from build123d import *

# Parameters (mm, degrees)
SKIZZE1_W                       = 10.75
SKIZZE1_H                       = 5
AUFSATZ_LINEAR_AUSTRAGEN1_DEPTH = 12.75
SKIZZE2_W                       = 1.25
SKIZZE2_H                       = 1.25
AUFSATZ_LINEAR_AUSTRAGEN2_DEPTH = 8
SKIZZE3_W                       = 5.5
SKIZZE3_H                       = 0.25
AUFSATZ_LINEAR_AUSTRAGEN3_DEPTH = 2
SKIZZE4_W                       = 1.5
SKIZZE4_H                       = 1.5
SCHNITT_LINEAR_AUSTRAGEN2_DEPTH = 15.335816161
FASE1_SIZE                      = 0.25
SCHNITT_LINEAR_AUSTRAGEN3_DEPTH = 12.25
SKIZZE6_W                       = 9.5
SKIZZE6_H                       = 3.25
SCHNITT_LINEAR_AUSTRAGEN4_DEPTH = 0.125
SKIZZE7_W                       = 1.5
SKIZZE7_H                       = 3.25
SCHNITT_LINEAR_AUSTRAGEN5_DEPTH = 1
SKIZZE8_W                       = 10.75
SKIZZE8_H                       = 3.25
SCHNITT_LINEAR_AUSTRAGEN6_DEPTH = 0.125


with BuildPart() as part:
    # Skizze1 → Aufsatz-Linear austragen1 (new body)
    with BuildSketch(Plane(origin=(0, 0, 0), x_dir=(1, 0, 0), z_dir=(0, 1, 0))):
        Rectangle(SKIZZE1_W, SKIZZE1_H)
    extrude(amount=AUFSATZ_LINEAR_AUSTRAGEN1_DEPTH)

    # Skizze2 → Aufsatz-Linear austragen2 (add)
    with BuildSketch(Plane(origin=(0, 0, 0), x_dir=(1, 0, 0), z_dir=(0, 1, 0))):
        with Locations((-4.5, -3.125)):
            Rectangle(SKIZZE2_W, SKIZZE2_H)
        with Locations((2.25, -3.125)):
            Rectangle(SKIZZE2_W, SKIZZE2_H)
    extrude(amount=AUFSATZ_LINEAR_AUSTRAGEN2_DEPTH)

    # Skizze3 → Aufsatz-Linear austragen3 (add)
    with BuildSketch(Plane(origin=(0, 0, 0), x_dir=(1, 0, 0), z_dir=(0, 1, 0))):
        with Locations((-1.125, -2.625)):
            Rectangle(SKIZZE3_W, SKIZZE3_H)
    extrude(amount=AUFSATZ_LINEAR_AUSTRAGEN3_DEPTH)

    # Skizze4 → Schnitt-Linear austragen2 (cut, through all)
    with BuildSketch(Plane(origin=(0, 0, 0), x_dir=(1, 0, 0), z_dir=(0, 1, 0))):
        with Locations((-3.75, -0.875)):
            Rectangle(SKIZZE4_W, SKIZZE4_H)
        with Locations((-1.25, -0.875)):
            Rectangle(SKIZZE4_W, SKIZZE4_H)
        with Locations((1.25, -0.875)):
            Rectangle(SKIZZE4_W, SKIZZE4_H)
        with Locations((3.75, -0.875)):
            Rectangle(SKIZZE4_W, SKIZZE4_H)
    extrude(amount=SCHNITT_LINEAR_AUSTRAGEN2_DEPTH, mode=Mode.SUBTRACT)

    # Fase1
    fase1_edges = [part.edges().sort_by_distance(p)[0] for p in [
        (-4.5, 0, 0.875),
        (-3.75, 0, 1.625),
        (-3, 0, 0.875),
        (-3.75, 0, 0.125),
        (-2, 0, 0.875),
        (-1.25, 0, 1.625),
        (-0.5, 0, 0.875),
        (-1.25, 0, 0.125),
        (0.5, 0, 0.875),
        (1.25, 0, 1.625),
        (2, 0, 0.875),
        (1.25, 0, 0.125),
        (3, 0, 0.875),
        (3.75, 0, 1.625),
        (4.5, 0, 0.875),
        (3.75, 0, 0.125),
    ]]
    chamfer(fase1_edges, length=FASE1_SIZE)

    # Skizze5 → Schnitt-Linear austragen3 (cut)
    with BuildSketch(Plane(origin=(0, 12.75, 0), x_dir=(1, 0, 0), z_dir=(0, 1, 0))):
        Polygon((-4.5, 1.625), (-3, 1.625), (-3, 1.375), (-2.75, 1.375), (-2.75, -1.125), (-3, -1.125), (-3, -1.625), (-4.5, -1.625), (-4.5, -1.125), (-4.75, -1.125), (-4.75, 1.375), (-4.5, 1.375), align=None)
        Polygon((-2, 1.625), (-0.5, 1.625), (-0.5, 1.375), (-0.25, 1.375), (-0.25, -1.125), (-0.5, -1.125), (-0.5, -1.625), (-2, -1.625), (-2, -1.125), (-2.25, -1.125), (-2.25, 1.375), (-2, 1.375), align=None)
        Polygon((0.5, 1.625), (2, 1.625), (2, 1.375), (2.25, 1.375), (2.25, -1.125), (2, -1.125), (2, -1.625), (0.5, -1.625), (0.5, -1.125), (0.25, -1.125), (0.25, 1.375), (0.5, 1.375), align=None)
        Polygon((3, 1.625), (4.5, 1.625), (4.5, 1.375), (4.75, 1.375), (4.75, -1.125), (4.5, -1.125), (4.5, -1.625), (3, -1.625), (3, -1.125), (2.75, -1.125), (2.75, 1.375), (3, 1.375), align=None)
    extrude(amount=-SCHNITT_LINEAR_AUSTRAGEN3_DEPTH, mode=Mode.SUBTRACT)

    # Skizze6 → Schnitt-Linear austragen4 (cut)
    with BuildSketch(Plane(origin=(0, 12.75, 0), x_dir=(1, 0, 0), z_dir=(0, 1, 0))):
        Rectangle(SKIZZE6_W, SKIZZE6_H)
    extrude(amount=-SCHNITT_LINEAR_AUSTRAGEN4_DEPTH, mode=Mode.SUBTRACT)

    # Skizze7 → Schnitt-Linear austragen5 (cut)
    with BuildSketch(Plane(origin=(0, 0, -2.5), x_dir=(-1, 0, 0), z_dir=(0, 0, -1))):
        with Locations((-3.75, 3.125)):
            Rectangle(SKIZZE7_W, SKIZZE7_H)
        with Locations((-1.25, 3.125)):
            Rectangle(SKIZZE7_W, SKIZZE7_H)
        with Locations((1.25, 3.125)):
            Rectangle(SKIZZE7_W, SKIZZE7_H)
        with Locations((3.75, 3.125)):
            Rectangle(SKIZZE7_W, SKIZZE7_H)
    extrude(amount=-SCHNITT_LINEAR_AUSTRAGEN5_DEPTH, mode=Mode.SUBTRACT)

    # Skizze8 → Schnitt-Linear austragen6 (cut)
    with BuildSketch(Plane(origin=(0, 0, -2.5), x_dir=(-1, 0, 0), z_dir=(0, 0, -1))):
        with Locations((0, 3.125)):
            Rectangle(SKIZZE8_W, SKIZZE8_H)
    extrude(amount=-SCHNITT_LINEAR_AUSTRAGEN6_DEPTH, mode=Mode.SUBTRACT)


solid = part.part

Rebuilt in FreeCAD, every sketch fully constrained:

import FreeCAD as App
import Part
import Sketcher
from FreeCAD import Vector


def edges_at(feature, points):
    """Names of the edges that pass closest to the given points."""
    edges = feature.Shape.Edges
    near = lambda p: min(range(len(edges)), key=lambda i: edges[i].distToShape(Part.Vertex(*p))[0])
    return sorted({f"Edge{near(p) + 1}" for p in points})

doc = App.newDocument("Part")
body = doc.addObject("PartDesign::Body", "Body")

sketch1 = doc.addObject("Sketcher::SketchObject", "Sketch")
body.addObject(sketch1)
sketch1.AttachmentSupport = (doc.XZ_Plane, [""])
sketch1.MapMode = "FlatFace"
sketch1.addGeometry(Part.LineSegment(Vector(-5, -2, 0), Vector(-5, 2, 0)), False)
sketch1.addGeometry(Part.LineSegment(Vector(-5, 2, 0), Vector(5, 2, 0)), False)
sketch1.addGeometry(Part.LineSegment(Vector(5, 2, 0), Vector(5, -2, 0)), False)
sketch1.addGeometry(Part.LineSegment(Vector(5, -2, 0), Vector(-5, -2, 0)), False)
sketch1.addConstraint(Sketcher.Constraint("Coincident", 0, 2, 1, 1))
sketch1.addConstraint(Sketcher.Constraint("Coincident", 1, 2, 2, 1))
sketch1.addConstraint(Sketcher.Constraint("Coincident", 2, 2, 3, 1))
sketch1.addConstraint(Sketcher.Constraint("Coincident", 3, 2, 0, 1))
sketch1.addConstraint(Sketcher.Constraint("Vertical", 0))
sketch1.addConstraint(Sketcher.Constraint("Horizontal", 1))
sketch1.addConstraint(Sketcher.Constraint("Vertical", 2))
sketch1.addConstraint(Sketcher.Constraint("Horizontal", 3))
sketch1.addConstraint(Sketcher.Constraint("Symmetric", 0, 2, 2, 2, -1, 1))
sketch1.addConstraint(Sketcher.Constraint("DistanceY", 0, 1, 0, 2, 5.0))
sketch1.addConstraint(Sketcher.Constraint("DistanceX", 1, 1, 1, 2, 10.75))
pad1 = doc.addObject("PartDesign::Pad", "Pad")
body.addObject(pad1)
pad1.Profile = sketch1
pad1.Length = 12.75
pad1.Reversed = True

sketch2 = doc.addObject("Sketcher::SketchObject", "Sketch001")
body.addObject(sketch2)
sketch2.AttachmentSupport = (doc.XZ_Plane, [""])
sketch2.MapMode = "FlatFace"
sketch2.addGeometry(Part.LineSegment(Vector(-5.1, 2.5, 0), Vector(-5.1, 3.8, 0)), False)
sketch2.addGeometry(Part.LineSegment(Vector(-5.1, 3.8, 0), Vector(-3.9, 3.8, 0)), False)
sketch2.addGeometry(Part.LineSegment(Vector(-3.9, 3.8, 0), Vector(-3.9, 2.5, 0)), False)
sketch2.addGeometry(Part.LineSegment(Vector(-3.9, 2.5, 0), Vector(-5.1, 2.5, 0)), False)
sketch2.addGeometry(Part.LineSegment(Vector(1.6, 2.5, 0), Vector(1.6, 3.8, 0)), False)
sketch2.addGeometry(Part.LineSegment(Vector(1.6, 3.8, 0), Vector(2.9, 3.8, 0)), False)
sketch2.addGeometry(Part.LineSegment(Vector(2.9, 3.8, 0), Vector(2.9, 2.5, 0)), False)
sketch2.addGeometry(Part.LineSegment(Vector(2.9, 2.5, 0), Vector(1.6, 2.5, 0)), False)
sketch2.addConstraint(Sketcher.Constraint("Coincident", 0, 2, 1, 1))
sketch2.addConstraint(Sketcher.Constraint("Coincident", 1, 2, 2, 1))
sketch2.addConstraint(Sketcher.Constraint("Coincident", 2, 2, 3, 1))
sketch2.addConstraint(Sketcher.Constraint("Coincident", 3, 2, 0, 1))
sketch2.addConstraint(Sketcher.Constraint("Coincident", 4, 2, 5, 1))
sketch2.addConstraint(Sketcher.Constraint("Coincident", 5, 2, 6, 1))
sketch2.addConstraint(Sketcher.Constraint("Coincident", 6, 2, 7, 1))
sketch2.addConstraint(Sketcher.Constraint("Coincident", 7, 2, 4, 1))
sketch2.addConstraint(Sketcher.Constraint("Vertical", 0))
sketch2.addConstraint(Sketcher.Constraint("Horizontal", 1))
sketch2.addConstraint(Sketcher.Constraint("Vertical", 2))
sketch2.addConstraint(Sketcher.Constraint("Horizontal", 3))
sketch2.addConstraint(Sketcher.Constraint("Vertical", 4))
sketch2.addConstraint(Sketcher.Constraint("Horizontal", 5))
sketch2.addConstraint(Sketcher.Constraint("Vertical", 6))
sketch2.addConstraint(Sketcher.Constraint("Horizontal", 7))
sketch2.addConstraint(Sketcher.Constraint("Horizontal", 1, 2, 4, 2))
sketch2.addConstraint(Sketcher.Constraint("Horizontal", 3, 2, 6, 2))
sketch2.addConstraint(Sketcher.Constraint("Equal", 3, 5))
sketch2.addConstraint(Sketcher.Constraint("Equal", 7, 0))
sketch2.addConstraint(Sketcher.Constraint("DistanceX", 0, 2, 5, 2, 8.0))
sketch2.addConstraint(Sketcher.Constraint("DistanceX", 1, 1, 1, 2, 1.25))
sketch2.addConstraint(Sketcher.Constraint("DistanceY", -1, 1, 2, 2, 2.5))
sketch2.addConstraint(Sketcher.Constraint("DistanceX", 0, 2, -1, 1, 5.125))
pad2 = doc.addObject("PartDesign::Pad", "Pad001")
body.addObject(pad2)
pad2.Profile = sketch2
pad2.Length = 8
pad2.Reversed = True

sketch3 = doc.addObject("Sketcher::SketchObject", "Sketch002")
body.addObject(sketch3)
sketch3.AttachmentSupport = (doc.XZ_Plane, [""])
sketch3.MapMode = "FlatFace"
sketch3.addGeometry(Part.LineSegment(Vector(-3.88, 2.5, 0), Vector(-3.88, 2.75, 0)), False)
sketch3.addGeometry(Part.LineSegment(Vector(-3.88, 2.75, 0), Vector(1.62, 2.75, 0)), False)
sketch3.addGeometry(Part.LineSegment(Vector(1.62, 2.75, 0), Vector(1.62, 2.5, 0)), False)
sketch3.addGeometry(Part.LineSegment(Vector(1.62, 2.5, 0), Vector(-3.88, 2.5, 0)), False)
sketch3.addConstraint(Sketcher.Constraint("Coincident", 0, 2, 1, 1))
sketch3.addConstraint(Sketcher.Constraint("Coincident", 1, 2, 2, 1))
sketch3.addConstraint(Sketcher.Constraint("Coincident", 2, 2, 3, 1))
sketch3.addConstraint(Sketcher.Constraint("Coincident", 3, 2, 0, 1))
sketch3.addConstraint(Sketcher.Constraint("Vertical", 0))
sketch3.addConstraint(Sketcher.Constraint("Horizontal", 1))
sketch3.addConstraint(Sketcher.Constraint("Vertical", 2))
sketch3.addConstraint(Sketcher.Constraint("Horizontal", 3))
sketch3.addConstraint(Sketcher.Constraint("DistanceX", 1, 1, 1, 2, 5.5))
sketch3.addConstraint(Sketcher.Constraint("DistanceY", 0, 1, 0, 2, 0.25))
sketch3.addConstraint(Sketcher.Constraint("DistanceY", -1, 1, 2, 2, 2.5))
sketch3.addConstraint(Sketcher.Constraint("DistanceX", 0, 2, -1, 1, 3.875))
pad3 = doc.addObject("PartDesign::Pad", "Pad002")
body.addObject(pad3)
pad3.Profile = sketch3
pad3.Length = 2
pad3.Reversed = True

sketch4 = doc.addObject("Sketcher::SketchObject", "Sketch003")
body.addObject(sketch4)
sketch4.AttachmentSupport = (doc.XZ_Plane, [""])
sketch4.MapMode = "FlatFace"
sketch4.addGeometry(Part.LineSegment(Vector(-4.5, 0.1, 0), Vector(-4.5, 1.6, 0)), False)
sketch4.addGeometry(Part.LineSegment(Vector(-4.5, 1.6, 0), Vector(-3, 1.6, 0)), False)
sketch4.addGeometry(Part.LineSegment(Vector(-3, 1.6, 0), Vector(-3, 0.1, 0)), False)
sketch4.addGeometry(Part.LineSegment(Vector(-3, 0.1, 0), Vector(-4.5, 0.1, 0)), False)
sketch4.addGeometry(Part.LineSegment(Vector(-2, 0.1, 0), Vector(-2, 1.6, 0)), False)
sketch4.addGeometry(Part.LineSegment(Vector(-2, 1.6, 0), Vector(-0.5, 1.6, 0)), False)
sketch4.addGeometry(Part.LineSegment(Vector(-0.5, 1.6, 0), Vector(-0.5, 0.1, 0)), False)
sketch4.addGeometry(Part.LineSegment(Vector(-0.5, 0.1, 0), Vector(-2, 0.1, 0)), False)
sketch4.addGeometry(Part.LineSegment(Vector(0.5, 0.1, 0), Vector(0.5, 1.6, 0)), False)
sketch4.addGeometry(Part.LineSegment(Vector(0.5, 1.6, 0), Vector(2, 1.6, 0)), False)
sketch4.addGeometry(Part.LineSegment(Vector(2, 1.6, 0), Vector(2, 0.1, 0)), False)
sketch4.addGeometry(Part.LineSegment(Vector(2, 0.1, 0), Vector(0.5, 0.1, 0)), False)
sketch4.addGeometry(Part.LineSegment(Vector(3, 0.1, 0), Vector(3, 1.6, 0)), False)
sketch4.addGeometry(Part.LineSegment(Vector(3, 1.6, 0), Vector(4.5, 1.6, 0)), False)
sketch4.addGeometry(Part.LineSegment(Vector(4.5, 1.6, 0), Vector(4.5, 0.1, 0)), False)
sketch4.addGeometry(Part.LineSegment(Vector(4.5, 0.1, 0), Vector(3, 0.1, 0)), False)
sketch4.addConstraint(Sketcher.Constraint("Coincident", 0, 2, 1, 1))
sketch4.addConstraint(Sketcher.Constraint("Coincident", 1, 2, 2, 1))
sketch4.addConstraint(Sketcher.Constraint("Coincident", 2, 2, 3, 1))
sketch4.addConstraint(Sketcher.Constraint("Coincident", 3, 2, 0, 1))
sketch4.addConstraint(Sketcher.Constraint("Coincident", 4, 2, 5, 1))
sketch4.addConstraint(Sketcher.Constraint("Coincident", 5, 2, 6, 1))
sketch4.addConstraint(Sketcher.Constraint("Coincident", 6, 2, 7, 1))
sketch4.addConstraint(Sketcher.Constraint("Coincident", 7, 2, 4, 1))
sketch4.addConstraint(Sketcher.Constraint("Coincident", 8, 2, 9, 1))
sketch4.addConstraint(Sketcher.Constraint("Coincident", 9, 2, 10, 1))
sketch4.addConstraint(Sketcher.Constraint("Coincident", 10, 2, 11, 1))
sketch4.addConstraint(Sketcher.Constraint("Coincident", 11, 2, 8, 1))
sketch4.addConstraint(Sketcher.Constraint("Coincident", 12, 2, 13, 1))
sketch4.addConstraint(Sketcher.Constraint("Coincident", 13, 2, 14, 1))
sketch4.addConstraint(Sketcher.Constraint("Coincident", 14, 2, 15, 1))
sketch4.addConstraint(Sketcher.Constraint("Coincident", 15, 2, 12, 1))
sketch4.addConstraint(Sketcher.Constraint("Vertical", 0))
sketch4.addConstraint(Sketcher.Constraint("Horizontal", 1))
sketch4.addConstraint(Sketcher.Constraint("Vertical", 2))
sketch4.addConstraint(Sketcher.Constraint("Horizontal", 3))
sketch4.addConstraint(Sketcher.Constraint("Vertical", 4))
sketch4.addConstraint(Sketcher.Constraint("Horizontal", 5))
sketch4.addConstraint(Sketcher.Constraint("Vertical", 6))
sketch4.addConstraint(Sketcher.Constraint("Horizontal", 7))
sketch4.addConstraint(Sketcher.Constraint("Vertical", 8))
sketch4.addConstraint(Sketcher.Constraint("Horizontal", 9))
sketch4.addConstraint(Sketcher.Constraint("Vertical", 10))
sketch4.addConstraint(Sketcher.Constraint("Horizontal", 11))
sketch4.addConstraint(Sketcher.Constraint("Vertical", 12))
sketch4.addConstraint(Sketcher.Constraint("Horizontal", 13))
sketch4.addConstraint(Sketcher.Constraint("Vertical", 14))
sketch4.addConstraint(Sketcher.Constraint("Horizontal", 15))
sketch4.addConstraint(Sketcher.Constraint("Symmetric", 5, 2, 8, 2, -2))
sketch4.addConstraint(Sketcher.Constraint("Symmetric", 7, 2, 10, 2, -2))
sketch4.addConstraint(Sketcher.Constraint("Symmetric", 1, 2, 12, 2, -2))
sketch4.addConstraint(Sketcher.Constraint("Symmetric", 3, 2, 14, 2, -2))
sketch4.addConstraint(Sketcher.Constraint("Horizontal", 1, 2, 4, 2))
sketch4.addConstraint(Sketcher.Constraint("Horizontal", 3, 2, 6, 2))
sketch4.addConstraint(Sketcher.Constraint("Equal", 3, 5))
sketch4.addConstraint(Sketcher.Constraint("Equal", 15, 0))
sketch4.addConstraint(Sketcher.Constraint("DistanceX", 1, 1, 1, 2, 1.5))
sketch4.addConstraint(Sketcher.Constraint("DistanceX", 1, 2, -1, 1, 3.0))
sketch4.addConstraint(Sketcher.Constraint("DistanceX", 4, 2, -1, 1, 2.0))
sketch4.addConstraint(Sketcher.Constraint("DistanceY", -1, 1, 0, 2, 1.625))
pocket1 = doc.addObject("PartDesign::Pocket", "Pocket")
body.addObject(pocket1)
pocket1.Profile = sketch4
pocket1.Type = "ThroughAll"
doc.recompute()

chamfer = doc.addObject("PartDesign::Chamfer", "Chamfer")
body.addObject(chamfer)
chamfer.Base = (pocket1, edges_at(pocket1, [
    (-4.5, 0, 0.875),
    (-3.75, 0, 1.625),
    (-3, 0, 0.875),
    (-3.75, 0, 0.125),
    (-2, 0, 0.875),
    (-1.25, 0, 1.625),
    (-0.5, 0, 0.875),
    (-1.25, 0, 0.125),
    (0.5, 0, 0.875),
    (1.25, 0, 1.625),
    (2, 0, 0.875),
    (1.25, 0, 0.125),
    (3, 0, 0.875),
    (3.75, 0, 1.625),
    (4.5, 0, 0.875),
    (3.75, 0, 0.125),
]))
chamfer.Size = 0.25

sketch5 = doc.addObject("Sketcher::SketchObject", "Sketch004")
body.addObject(sketch5)
sketch5.AttachmentSupport = (doc.XZ_Plane, [""])
sketch5.MapMode = "FlatFace"
sketch5.AttachmentOffset = App.Placement(Vector(0, 0, -12.75), App.Rotation())
sketch5.addGeometry(Part.LineSegment(Vector(-3, -1.62, 0), Vector(-4.5, -1.62, 0)), False)
sketch5.addGeometry(Part.LineSegment(Vector(-4.5, -1.62, 0), Vector(-4.5, -1.38, 0)), False)
sketch5.addGeometry(Part.LineSegment(Vector(-4.5, -1.38, 0), Vector(-4.75, -1.38, 0)), False)
sketch5.addGeometry(Part.LineSegment(Vector(-4.75, -1.38, 0), Vector(-4.75, 1.12, 0)), False)
sketch5.addGeometry(Part.LineSegment(Vector(-4.75, 1.12, 0), Vector(-4.5, 1.12, 0)), False)
sketch5.addGeometry(Part.LineSegment(Vector(-4.5, 1.12, 0), Vector(-4.5, 1.62, 0)), False)
sketch5.addGeometry(Part.LineSegment(Vector(-4.5, 1.62, 0), Vector(-3, 1.62, 0)), False)
sketch5.addGeometry(Part.LineSegment(Vector(-3, 1.62, 0), Vector(-3, 1.12, 0)), False)
sketch5.addGeometry(Part.LineSegment(Vector(-3, 1.12, 0), Vector(-2.75, 1.12, 0)), False)
sketch5.addGeometry(Part.LineSegment(Vector(-2.75, 1.12, 0), Vector(-2.75, -1.38, 0)), False)
sketch5.addGeometry(Part.LineSegment(Vector(-2.75, -1.38, 0), Vector(-3, -1.38, 0)), False)
sketch5.addGeometry(Part.LineSegment(Vector(-3, -1.38, 0), Vector(-3, -1.62, 0)), False)
sketch5.addGeometry(Part.LineSegment(Vector(-0.5, -1.62, 0), Vector(-2, -1.62, 0)), False)
sketch5.addGeometry(Part.LineSegment(Vector(-2, -1.62, 0), Vector(-2, -1.38, 0)), False)
sketch5.addGeometry(Part.LineSegment(Vector(-2, -1.38, 0), Vector(-2.25, -1.38, 0)), False)
sketch5.addGeometry(Part.LineSegment(Vector(-2.25, -1.38, 0), Vector(-2.25, 1.12, 0)), False)
sketch5.addGeometry(Part.LineSegment(Vector(-2.25, 1.12, 0), Vector(-2, 1.12, 0)), False)
sketch5.addGeometry(Part.LineSegment(Vector(-2, 1.12, 0), Vector(-2, 1.62, 0)), False)
sketch5.addGeometry(Part.LineSegment(Vector(-2, 1.62, 0), Vector(-0.5, 1.62, 0)), False)
sketch5.addGeometry(Part.LineSegment(Vector(-0.5, 1.62, 0), Vector(-0.5, 1.12, 0)), False)
sketch5.addGeometry(Part.LineSegment(Vector(-0.5, 1.12, 0), Vector(-0.25, 1.12, 0)), False)
sketch5.addGeometry(Part.LineSegment(Vector(-0.25, 1.12, 0), Vector(-0.25, -1.38, 0)), False)
sketch5.addGeometry(Part.LineSegment(Vector(-0.25, -1.38, 0), Vector(-0.5, -1.38, 0)), False)
sketch5.addGeometry(Part.LineSegment(Vector(-0.5, -1.38, 0), Vector(-0.5, -1.62, 0)), False)
sketch5.addGeometry(Part.LineSegment(Vector(2, -1.62, 0), Vector(0.5, -1.62, 0)), False)
sketch5.addGeometry(Part.LineSegment(Vector(0.5, -1.62, 0), Vector(0.5, -1.38, 0)), False)
sketch5.addGeometry(Part.LineSegment(Vector(0.5, -1.38, 0), Vector(0.25, -1.38, 0)), False)
sketch5.addGeometry(Part.LineSegment(Vector(0.25, -1.38, 0), Vector(0.25, 1.12, 0)), False)
sketch5.addGeometry(Part.LineSegment(Vector(0.25, 1.12, 0), Vector(0.5, 1.12, 0)), False)
sketch5.addGeometry(Part.LineSegment(Vector(0.5, 1.12, 0), Vector(0.5, 1.62, 0)), False)
sketch5.addGeometry(Part.LineSegment(Vector(0.5, 1.62, 0), Vector(2, 1.62, 0)), False)
sketch5.addGeometry(Part.LineSegment(Vector(2, 1.62, 0), Vector(2, 1.12, 0)), False)
sketch5.addGeometry(Part.LineSegment(Vector(2, 1.12, 0), Vector(2.25, 1.12, 0)), False)
sketch5.addGeometry(Part.LineSegment(Vector(2.25, 1.12, 0), Vector(2.25, -1.38, 0)), False)
sketch5.addGeometry(Part.LineSegment(Vector(2.25, -1.38, 0), Vector(2, -1.38, 0)), False)
sketch5.addGeometry(Part.LineSegment(Vector(2, -1.38, 0), Vector(2, -1.62, 0)), False)
sketch5.addGeometry(Part.LineSegment(Vector(4.5, -1.62, 0), Vector(3, -1.62, 0)), False)
sketch5.addGeometry(Part.LineSegment(Vector(3, -1.62, 0), Vector(3, -1.38, 0)), False)
sketch5.addGeometry(Part.LineSegment(Vector(3, -1.38, 0), Vector(2.75, -1.38, 0)), False)
sketch5.addGeometry(Part.LineSegment(Vector(2.75, -1.38, 0), Vector(2.75, 1.12, 0)), False)
sketch5.addGeometry(Part.LineSegment(Vector(2.75, 1.12, 0), Vector(3, 1.12, 0)), False)
sketch5.addGeometry(Part.LineSegment(Vector(3, 1.12, 0), Vector(3, 1.62, 0)), False)
sketch5.addGeometry(Part.LineSegment(Vector(3, 1.62, 0), Vector(4.5, 1.62, 0)), False)
sketch5.addGeometry(Part.LineSegment(Vector(4.5, 1.62, 0), Vector(4.5, 1.12, 0)), False)
sketch5.addGeometry(Part.LineSegment(Vector(4.5, 1.12, 0), Vector(4.75, 1.12, 0)), False)
sketch5.addGeometry(Part.LineSegment(Vector(4.75, 1.12, 0), Vector(4.75, -1.38, 0)), False)
sketch5.addGeometry(Part.LineSegment(Vector(4.75, -1.38, 0), Vector(4.5, -1.38, 0)), False)
sketch5.addGeometry(Part.LineSegment(Vector(4.5, -1.38, 0), Vector(4.5, -1.62, 0)), False)
sketch5.addConstraint(Sketcher.Constraint("Coincident", 0, 2, 1, 1))
sketch5.addConstraint(Sketcher.Constraint("Coincident", 1, 2, 2, 1))
sketch5.addConstraint(Sketcher.Constraint("Coincident", 2, 2, 3, 1))
sketch5.addConstraint(Sketcher.Constraint("Coincident", 3, 2, 4, 1))
sketch5.addConstraint(Sketcher.Constraint("Coincident", 4, 2, 5, 1))
sketch5.addConstraint(Sketcher.Constraint("Coincident", 5, 2, 6, 1))
sketch5.addConstraint(Sketcher.Constraint("Coincident", 6, 2, 7, 1))
sketch5.addConstraint(Sketcher.Constraint("Coincident", 7, 2, 8, 1))
sketch5.addConstraint(Sketcher.Constraint("Coincident", 8, 2, 9, 1))
sketch5.addConstraint(Sketcher.Constraint("Coincident", 9, 2, 10, 1))
sketch5.addConstraint(Sketcher.Constraint("Coincident", 10, 2, 11, 1))
sketch5.addConstraint(Sketcher.Constraint("Coincident", 11, 2, 0, 1))
sketch5.addConstraint(Sketcher.Constraint("Coincident", 12, 2, 13, 1))
sketch5.addConstraint(Sketcher.Constraint("Coincident", 13, 2, 14, 1))
sketch5.addConstraint(Sketcher.Constraint("Coincident", 14, 2, 15, 1))
sketch5.addConstraint(Sketcher.Constraint("Coincident", 15, 2, 16, 1))
sketch5.addConstraint(Sketcher.Constraint("Coincident", 16, 2, 17, 1))
sketch5.addConstraint(Sketcher.Constraint("Coincident", 17, 2, 18, 1))
sketch5.addConstraint(Sketcher.Constraint("Coincident", 18, 2, 19, 1))
sketch5.addConstraint(Sketcher.Constraint("Coincident", 19, 2, 20, 1))
sketch5.addConstraint(Sketcher.Constraint("Coincident", 20, 2, 21, 1))
sketch5.addConstraint(Sketcher.Constraint("Coincident", 21, 2, 22, 1))
sketch5.addConstraint(Sketcher.Constraint("Coincident", 22, 2, 23, 1))
sketch5.addConstraint(Sketcher.Constraint("Coincident", 23, 2, 12, 1))
sketch5.addConstraint(Sketcher.Constraint("Coincident", 24, 2, 25, 1))
sketch5.addConstraint(Sketcher.Constraint("Coincident", 25, 2, 26, 1))
sketch5.addConstraint(Sketcher.Constraint("Coincident", 26, 2, 27, 1))
sketch5.addConstraint(Sketcher.Constraint("Coincident", 27, 2, 28, 1))
sketch5.addConstraint(Sketcher.Constraint("Coincident", 28, 2, 29, 1))
sketch5.addConstraint(Sketcher.Constraint("Coincident", 29, 2, 30, 1))
sketch5.addConstraint(Sketcher.Constraint("Coincident", 30, 2, 31, 1))
sketch5.addConstraint(Sketcher.Constraint("Coincident", 31, 2, 32, 1))
sketch5.addConstraint(Sketcher.Constraint("Coincident", 32, 2, 33, 1))
sketch5.addConstraint(Sketcher.Constraint("Coincident", 33, 2, 34, 1))
sketch5.addConstraint(Sketcher.Constraint("Coincident", 34, 2, 35, 1))
sketch5.addConstraint(Sketcher.Constraint("Coincident", 35, 2, 24, 1))
sketch5.addConstraint(Sketcher.Constraint("Coincident", 36, 2, 37, 1))
sketch5.addConstraint(Sketcher.Constraint("Coincident", 37, 2, 38, 1))
sketch5.addConstraint(Sketcher.Constraint("Coincident", 38, 2, 39, 1))
sketch5.addConstraint(Sketcher.Constraint("Coincident", 39, 2, 40, 1))
sketch5.addConstraint(Sketcher.Constraint("Coincident", 40, 2, 41, 1))
sketch5.addConstraint(Sketcher.Constraint("Coincident", 41, 2, 42, 1))
sketch5.addConstraint(Sketcher.Constraint("Coincident", 42, 2, 43, 1))
sketch5.addConstraint(Sketcher.Constraint("Coincident", 43, 2, 44, 1))
sketch5.addConstraint(Sketcher.Constraint("Coincident", 44, 2, 45, 1))
sketch5.addConstraint(Sketcher.Constraint("Coincident", 45, 2, 46, 1))
sketch5.addConstraint(Sketcher.Constraint("Coincident", 46, 2, 47, 1))
sketch5.addConstraint(Sketcher.Constraint("Coincident", 47, 2, 36, 1))
sketch5.addConstraint(Sketcher.Constraint("Horizontal", 0))
sketch5.addConstraint(Sketcher.Constraint("Vertical", 1))
sketch5.addConstraint(Sketcher.Constraint("Horizontal", 2))
sketch5.addConstraint(Sketcher.Constraint("Vertical", 3))
sketch5.addConstraint(Sketcher.Constraint("Horizontal", 4))
sketch5.addConstraint(Sketcher.Constraint("Vertical", 5))
sketch5.addConstraint(Sketcher.Constraint("Horizontal", 6))
sketch5.addConstraint(Sketcher.Constraint("Vertical", 7))
sketch5.addConstraint(Sketcher.Constraint("Horizontal", 8))
sketch5.addConstraint(Sketcher.Constraint("Vertical", 9))
sketch5.addConstraint(Sketcher.Constraint("Horizontal", 10))
sketch5.addConstraint(Sketcher.Constraint("Vertical", 11))
sketch5.addConstraint(Sketcher.Constraint("Horizontal", 12))
sketch5.addConstraint(Sketcher.Constraint("Vertical", 13))
sketch5.addConstraint(Sketcher.Constraint("Horizontal", 14))
sketch5.addConstraint(Sketcher.Constraint("Vertical", 15))
sketch5.addConstraint(Sketcher.Constraint("Horizontal", 16))
sketch5.addConstraint(Sketcher.Constraint("Vertical", 17))
sketch5.addConstraint(Sketcher.Constraint("Horizontal", 18))
sketch5.addConstraint(Sketcher.Constraint("Vertical", 19))
sketch5.addConstraint(Sketcher.Constraint("Horizontal", 20))
sketch5.addConstraint(Sketcher.Constraint("Vertical", 21))
sketch5.addConstraint(Sketcher.Constraint("Horizontal", 22))
sketch5.addConstraint(Sketcher.Constraint("Vertical", 23))
sketch5.addConstraint(Sketcher.Constraint("Horizontal", 24))
sketch5.addConstraint(Sketcher.Constraint("Vertical", 25))
sketch5.addConstraint(Sketcher.Constraint("Horizontal", 26))
sketch5.addConstraint(Sketcher.Constraint("Vertical", 27))
sketch5.addConstraint(Sketcher.Constraint("Horizontal", 28))
sketch5.addConstraint(Sketcher.Constraint("Vertical", 29))
sketch5.addConstraint(Sketcher.Constraint("Horizontal", 30))
sketch5.addConstraint(Sketcher.Constraint("Vertical", 31))
sketch5.addConstraint(Sketcher.Constraint("Horizontal", 32))
sketch5.addConstraint(Sketcher.Constraint("Vertical", 33))
sketch5.addConstraint(Sketcher.Constraint("Horizontal", 34))
sketch5.addConstraint(Sketcher.Constraint("Vertical", 35))
sketch5.addConstraint(Sketcher.Constraint("Horizontal", 36))
sketch5.addConstraint(Sketcher.Constraint("Vertical", 37))
sketch5.addConstraint(Sketcher.Constraint("Horizontal", 38))
sketch5.addConstraint(Sketcher.Constraint("Vertical", 39))
sketch5.addConstraint(Sketcher.Constraint("Horizontal", 40))
sketch5.addConstraint(Sketcher.Constraint("Vertical", 41))
sketch5.addConstraint(Sketcher.Constraint("Horizontal", 42))
sketch5.addConstraint(Sketcher.Constraint("Vertical", 43))
sketch5.addConstraint(Sketcher.Constraint("Horizontal", 44))
sketch5.addConstraint(Sketcher.Constraint("Vertical", 45))
sketch5.addConstraint(Sketcher.Constraint("Horizontal", 46))
sketch5.addConstraint(Sketcher.Constraint("Vertical", 47))
sketch5.addConstraint(Sketcher.Constraint("Symmetric", 18, 2, 24, 2, -1, 1))
sketch5.addConstraint(Sketcher.Constraint("Symmetric", 23, 2, 29, 2, -1, 1))
sketch5.addConstraint(Sketcher.Constraint("Symmetric", 6, 2, 36, 2, -1, 1))
sketch5.addConstraint(Sketcher.Constraint("Symmetric", 11, 2, 41, 2, -1, 1))
sketch5.addConstraint(Sketcher.Constraint("Symmetric", 23, 2, 24, 2, -2))
sketch5.addConstraint(Sketcher.Constraint("Symmetric", 21, 2, 26, 2, -2))
sketch5.addConstraint(Sketcher.Constraint("Symmetric", 16, 2, 31, 2, -2))
sketch5.addConstraint(Sketcher.Constraint("Symmetric", 14, 2, 33, 2, -2))
sketch5.addConstraint(Sketcher.Constraint("Symmetric", 11, 2, 36, 2, -2))
sketch5.addConstraint(Sketcher.Constraint("Symmetric", 9, 2, 38, 2, -2))
sketch5.addConstraint(Sketcher.Constraint("Symmetric", 4, 2, 43, 2, -2))
sketch5.addConstraint(Sketcher.Constraint("Symmetric", 2, 2, 45, 2, -2))
sketch5.addConstraint(Sketcher.Constraint("Horizontal", 4, 2, 7, 2))
sketch5.addConstraint(Sketcher.Constraint("Horizontal", 2, 2, 9, 2))
sketch5.addConstraint(Sketcher.Constraint("Horizontal", 11, 2, 12, 2))
sketch5.addConstraint(Sketcher.Constraint("Horizontal", 10, 2, 13, 2))
sketch5.addConstraint(Sketcher.Constraint("Horizontal", 8, 2, 15, 2))
sketch5.addConstraint(Sketcher.Constraint("Horizontal", 16, 2, 19, 2))
sketch5.addConstraint(Sketcher.Constraint("Horizontal", 14, 2, 21, 2))
sketch5.addConstraint(Sketcher.Constraint("Horizontal", 20, 2, 27, 2))
sketch5.addConstraint(Sketcher.Constraint("Horizontal", 32, 2, 39, 2))
sketch5.addConstraint(Sketcher.Constraint("Vertical", 1, 2, 4, 2))
sketch5.addConstraint(Sketcher.Constraint("Vertical", 13, 2, 16, 2))
sketch5.addConstraint(Sketcher.Constraint("Vertical", 31, 2, 34, 2))
sketch5.addConstraint(Sketcher.Constraint("Vertical", 43, 2, 46, 2))
sketch5.addConstraint(Sketcher.Constraint("Equal", 4, 8))
sketch5.addConstraint(Sketcher.Constraint("Equal", 6, 12))
sketch5.addConstraint(Sketcher.Constraint("Equal", 10, 14))
sketch5.addConstraint(Sketcher.Constraint("Equal", 16, 20))
sketch5.addConstraint(Sketcher.Constraint("Equal", 46, 1))
sketch5.addConstraint(Sketcher.Constraint("DistanceX", 0, 2, 0, 1, 1.5))
sketch5.addConstraint(Sketcher.Constraint("DistanceY", 3, 1, 3, 2, 2.5))
sketch5.addConstraint(Sketcher.Constraint("DistanceY", 5, 1, 5, 2, 0.5))
sketch5.addConstraint(Sketcher.Constraint("DistanceX", 6, 2, -1, 1, 3.0))
sketch5.addConstraint(Sketcher.Constraint("DistanceX", 12, 2, -1, 1, 2.0))
sketch5.addConstraint(Sketcher.Constraint("DistanceX", 3, 2, 8, 2, 2.0))
pocket2 = doc.addObject("PartDesign::Pocket", "Pocket001")
body.addObject(pocket2)
pocket2.Profile = sketch5
pocket2.Length = 12.25
pocket2.Reversed = True

sketch6 = doc.addObject("Sketcher::SketchObject", "Sketch005")
body.addObject(sketch6)
sketch6.AttachmentSupport = (doc.XZ_Plane, [""])
sketch6.MapMode = "FlatFace"
sketch6.AttachmentOffset = App.Placement(Vector(0, 0, -12.75), App.Rotation())
sketch6.addGeometry(Part.LineSegment(Vector(-4.8, -1.6, 0), Vector(-4.8, 1.6, 0)), False)
sketch6.addGeometry(Part.LineSegment(Vector(-4.8, 1.6, 0), Vector(4.8, 1.6, 0)), False)
sketch6.addGeometry(Part.LineSegment(Vector(4.8, 1.6, 0), Vector(4.8, -1.6, 0)), False)
sketch6.addGeometry(Part.LineSegment(Vector(4.8, -1.6, 0), Vector(-4.8, -1.6, 0)), False)
sketch6.addConstraint(Sketcher.Constraint("Coincident", 0, 2, 1, 1))
sketch6.addConstraint(Sketcher.Constraint("Coincident", 1, 2, 2, 1))
sketch6.addConstraint(Sketcher.Constraint("Coincident", 2, 2, 3, 1))
sketch6.addConstraint(Sketcher.Constraint("Coincident", 3, 2, 0, 1))
sketch6.addConstraint(Sketcher.Constraint("Vertical", 0))
sketch6.addConstraint(Sketcher.Constraint("Horizontal", 1))
sketch6.addConstraint(Sketcher.Constraint("Vertical", 2))
sketch6.addConstraint(Sketcher.Constraint("Horizontal", 3))
sketch6.addConstraint(Sketcher.Constraint("Symmetric", 0, 2, 2, 2, -1, 1))
sketch6.addConstraint(Sketcher.Constraint("DistanceX", 1, 1, 1, 2, 9.5))
sketch6.addConstraint(Sketcher.Constraint("DistanceY", 0, 1, 0, 2, 3.25))
pocket3 = doc.addObject("PartDesign::Pocket", "Pocket002")
body.addObject(pocket3)
pocket3.Profile = sketch6
pocket3.Length = 0.125
pocket3.Reversed = True

sketch7 = doc.addObject("Sketcher::SketchObject", "Sketch006")
body.addObject(sketch7)
sketch7.AttachmentSupport = (doc.XY_Plane, [""])
sketch7.MapMode = "FlatFace"
sketch7.AttachmentOffset = App.Placement(Vector(0, 0, -2.5), App.Rotation())
sketch7.addGeometry(Part.LineSegment(Vector(4.5, 4.8, 0), Vector(4.5, 1.5, 0)), False)
sketch7.addGeometry(Part.LineSegment(Vector(4.5, 1.5, 0), Vector(3, 1.5, 0)), False)
sketch7.addGeometry(Part.LineSegment(Vector(3, 1.5, 0), Vector(3, 4.8, 0)), False)
sketch7.addGeometry(Part.LineSegment(Vector(3, 4.8, 0), Vector(4.5, 4.8, 0)), False)
sketch7.addGeometry(Part.LineSegment(Vector(2, 4.8, 0), Vector(2, 1.5, 0)), False)
sketch7.addGeometry(Part.LineSegment(Vector(2, 1.5, 0), Vector(0.5, 1.5, 0)), False)
sketch7.addGeometry(Part.LineSegment(Vector(0.5, 1.5, 0), Vector(0.5, 4.8, 0)), False)
sketch7.addGeometry(Part.LineSegment(Vector(0.5, 4.8, 0), Vector(2, 4.8, 0)), False)
sketch7.addGeometry(Part.LineSegment(Vector(-0.5, 4.8, 0), Vector(-0.5, 1.5, 0)), False)
sketch7.addGeometry(Part.LineSegment(Vector(-0.5, 1.5, 0), Vector(-2, 1.5, 0)), False)
sketch7.addGeometry(Part.LineSegment(Vector(-2, 1.5, 0), Vector(-2, 4.8, 0)), False)
sketch7.addGeometry(Part.LineSegment(Vector(-2, 4.8, 0), Vector(-0.5, 4.8, 0)), False)
sketch7.addGeometry(Part.LineSegment(Vector(-3, 4.8, 0), Vector(-3, 1.5, 0)), False)
sketch7.addGeometry(Part.LineSegment(Vector(-3, 1.5, 0), Vector(-4.5, 1.5, 0)), False)
sketch7.addGeometry(Part.LineSegment(Vector(-4.5, 1.5, 0), Vector(-4.5, 4.8, 0)), False)
sketch7.addGeometry(Part.LineSegment(Vector(-4.5, 4.8, 0), Vector(-3, 4.8, 0)), False)
sketch7.addConstraint(Sketcher.Constraint("Coincident", 0, 2, 1, 1))
sketch7.addConstraint(Sketcher.Constraint("Coincident", 1, 2, 2, 1))
sketch7.addConstraint(Sketcher.Constraint("Coincident", 2, 2, 3, 1))
sketch7.addConstraint(Sketcher.Constraint("Coincident", 3, 2, 0, 1))
sketch7.addConstraint(Sketcher.Constraint("Coincident", 4, 2, 5, 1))
sketch7.addConstraint(Sketcher.Constraint("Coincident", 5, 2, 6, 1))
sketch7.addConstraint(Sketcher.Constraint("Coincident", 6, 2, 7, 1))
sketch7.addConstraint(Sketcher.Constraint("Coincident", 7, 2, 4, 1))
sketch7.addConstraint(Sketcher.Constraint("Coincident", 8, 2, 9, 1))
sketch7.addConstraint(Sketcher.Constraint("Coincident", 9, 2, 10, 1))
sketch7.addConstraint(Sketcher.Constraint("Coincident", 10, 2, 11, 1))
sketch7.addConstraint(Sketcher.Constraint("Coincident", 11, 2, 8, 1))
sketch7.addConstraint(Sketcher.Constraint("Coincident", 12, 2, 13, 1))
sketch7.addConstraint(Sketcher.Constraint("Coincident", 13, 2, 14, 1))
sketch7.addConstraint(Sketcher.Constraint("Coincident", 14, 2, 15, 1))
sketch7.addConstraint(Sketcher.Constraint("Coincident", 15, 2, 12, 1))
sketch7.addConstraint(Sketcher.Constraint("Vertical", 0))
sketch7.addConstraint(Sketcher.Constraint("Horizontal", 1))
sketch7.addConstraint(Sketcher.Constraint("Vertical", 2))
sketch7.addConstraint(Sketcher.Constraint("Horizontal", 3))
sketch7.addConstraint(Sketcher.Constraint("Vertical", 4))
sketch7.addConstraint(Sketcher.Constraint("Horizontal", 5))
sketch7.addConstraint(Sketcher.Constraint("Vertical", 6))
sketch7.addConstraint(Sketcher.Constraint("Horizontal", 7))
sketch7.addConstraint(Sketcher.Constraint("Vertical", 8))
sketch7.addConstraint(Sketcher.Constraint("Horizontal", 9))
sketch7.addConstraint(Sketcher.Constraint("Vertical", 10))
sketch7.addConstraint(Sketcher.Constraint("Horizontal", 11))
sketch7.addConstraint(Sketcher.Constraint("Vertical", 12))
sketch7.addConstraint(Sketcher.Constraint("Horizontal", 13))
sketch7.addConstraint(Sketcher.Constraint("Vertical", 14))
sketch7.addConstraint(Sketcher.Constraint("Horizontal", 15))
sketch7.addConstraint(Sketcher.Constraint("Symmetric", 5, 2, 8, 2, -2))
sketch7.addConstraint(Sketcher.Constraint("Symmetric", 7, 2, 10, 2, -2))
sketch7.addConstraint(Sketcher.Constraint("Symmetric", 1, 2, 12, 2, -2))
sketch7.addConstraint(Sketcher.Constraint("Symmetric", 3, 2, 14, 2, -2))
sketch7.addConstraint(Sketcher.Constraint("Horizontal", 1, 2, 4, 2))
sketch7.addConstraint(Sketcher.Constraint("Horizontal", 3, 2, 6, 2))
sketch7.addConstraint(Sketcher.Constraint("Equal", 3, 5))
sketch7.addConstraint(Sketcher.Constraint("DistanceX", 1, 2, 1, 1, 1.5))
sketch7.addConstraint(Sketcher.Constraint("DistanceX", -1, 1, 1, 2, 3.0))
sketch7.addConstraint(Sketcher.Constraint("DistanceX", -1, 1, 4, 2, 2.0))
sketch7.addConstraint(Sketcher.Constraint("DistanceY", 0, 2, 0, 1, 3.25))
sketch7.addConstraint(Sketcher.Constraint("DistanceY", -1, 1, 0, 2, 1.5))
pocket4 = doc.addObject("PartDesign::Pocket", "Pocket003")
body.addObject(pocket4)
pocket4.Profile = sketch7
pocket4.Length = 1
pocket4.Reversed = True

sketch8 = doc.addObject("Sketcher::SketchObject", "Sketch007")
body.addObject(sketch8)
sketch8.AttachmentSupport = (doc.XY_Plane, [""])
sketch8.MapMode = "FlatFace"
sketch8.AttachmentOffset = App.Placement(Vector(0, 0, -2.5), App.Rotation())
sketch8.addGeometry(Part.LineSegment(Vector(5.4, 4.8, 0), Vector(5.4, 1.5, 0)), False)
sketch8.addGeometry(Part.LineSegment(Vector(5.4, 1.5, 0), Vector(-5.4, 1.5, 0)), False)
sketch8.addGeometry(Part.LineSegment(Vector(-5.4, 1.5, 0), Vector(-5.4, 4.8, 0)), False)
sketch8.addGeometry(Part.LineSegment(Vector(-5.4, 4.8, 0), Vector(5.4, 4.8, 0)), False)
sketch8.addConstraint(Sketcher.Constraint("Coincident", 0, 2, 1, 1))
sketch8.addConstraint(Sketcher.Constraint("Coincident", 1, 2, 2, 1))
sketch8.addConstraint(Sketcher.Constraint("Coincident", 2, 2, 3, 1))
sketch8.addConstraint(Sketcher.Constraint("Coincident", 3, 2, 0, 1))
sketch8.addConstraint(Sketcher.Constraint("Vertical", 0))
sketch8.addConstraint(Sketcher.Constraint("Horizontal", 1))
sketch8.addConstraint(Sketcher.Constraint("Vertical", 2))
sketch8.addConstraint(Sketcher.Constraint("Horizontal", 3))
sketch8.addConstraint(Sketcher.Constraint("DistanceX", 1, 2, 1, 1, 10.75))
sketch8.addConstraint(Sketcher.Constraint("DistanceY", 0, 2, 0, 1, 3.25))
sketch8.addConstraint(Sketcher.Constraint("DistanceY", -1, 1, 0, 2, 1.5))
sketch8.addConstraint(Sketcher.Constraint("DistanceX", -1, 1, 0, 2, 5.375))
pocket5 = doc.addObject("PartDesign::Pocket", "Pocket004")
body.addObject(pocket5)
pocket5.Profile = sketch8
pocket5.Length = 0.125
pocket5.Reversed = True

doc.recompute()
